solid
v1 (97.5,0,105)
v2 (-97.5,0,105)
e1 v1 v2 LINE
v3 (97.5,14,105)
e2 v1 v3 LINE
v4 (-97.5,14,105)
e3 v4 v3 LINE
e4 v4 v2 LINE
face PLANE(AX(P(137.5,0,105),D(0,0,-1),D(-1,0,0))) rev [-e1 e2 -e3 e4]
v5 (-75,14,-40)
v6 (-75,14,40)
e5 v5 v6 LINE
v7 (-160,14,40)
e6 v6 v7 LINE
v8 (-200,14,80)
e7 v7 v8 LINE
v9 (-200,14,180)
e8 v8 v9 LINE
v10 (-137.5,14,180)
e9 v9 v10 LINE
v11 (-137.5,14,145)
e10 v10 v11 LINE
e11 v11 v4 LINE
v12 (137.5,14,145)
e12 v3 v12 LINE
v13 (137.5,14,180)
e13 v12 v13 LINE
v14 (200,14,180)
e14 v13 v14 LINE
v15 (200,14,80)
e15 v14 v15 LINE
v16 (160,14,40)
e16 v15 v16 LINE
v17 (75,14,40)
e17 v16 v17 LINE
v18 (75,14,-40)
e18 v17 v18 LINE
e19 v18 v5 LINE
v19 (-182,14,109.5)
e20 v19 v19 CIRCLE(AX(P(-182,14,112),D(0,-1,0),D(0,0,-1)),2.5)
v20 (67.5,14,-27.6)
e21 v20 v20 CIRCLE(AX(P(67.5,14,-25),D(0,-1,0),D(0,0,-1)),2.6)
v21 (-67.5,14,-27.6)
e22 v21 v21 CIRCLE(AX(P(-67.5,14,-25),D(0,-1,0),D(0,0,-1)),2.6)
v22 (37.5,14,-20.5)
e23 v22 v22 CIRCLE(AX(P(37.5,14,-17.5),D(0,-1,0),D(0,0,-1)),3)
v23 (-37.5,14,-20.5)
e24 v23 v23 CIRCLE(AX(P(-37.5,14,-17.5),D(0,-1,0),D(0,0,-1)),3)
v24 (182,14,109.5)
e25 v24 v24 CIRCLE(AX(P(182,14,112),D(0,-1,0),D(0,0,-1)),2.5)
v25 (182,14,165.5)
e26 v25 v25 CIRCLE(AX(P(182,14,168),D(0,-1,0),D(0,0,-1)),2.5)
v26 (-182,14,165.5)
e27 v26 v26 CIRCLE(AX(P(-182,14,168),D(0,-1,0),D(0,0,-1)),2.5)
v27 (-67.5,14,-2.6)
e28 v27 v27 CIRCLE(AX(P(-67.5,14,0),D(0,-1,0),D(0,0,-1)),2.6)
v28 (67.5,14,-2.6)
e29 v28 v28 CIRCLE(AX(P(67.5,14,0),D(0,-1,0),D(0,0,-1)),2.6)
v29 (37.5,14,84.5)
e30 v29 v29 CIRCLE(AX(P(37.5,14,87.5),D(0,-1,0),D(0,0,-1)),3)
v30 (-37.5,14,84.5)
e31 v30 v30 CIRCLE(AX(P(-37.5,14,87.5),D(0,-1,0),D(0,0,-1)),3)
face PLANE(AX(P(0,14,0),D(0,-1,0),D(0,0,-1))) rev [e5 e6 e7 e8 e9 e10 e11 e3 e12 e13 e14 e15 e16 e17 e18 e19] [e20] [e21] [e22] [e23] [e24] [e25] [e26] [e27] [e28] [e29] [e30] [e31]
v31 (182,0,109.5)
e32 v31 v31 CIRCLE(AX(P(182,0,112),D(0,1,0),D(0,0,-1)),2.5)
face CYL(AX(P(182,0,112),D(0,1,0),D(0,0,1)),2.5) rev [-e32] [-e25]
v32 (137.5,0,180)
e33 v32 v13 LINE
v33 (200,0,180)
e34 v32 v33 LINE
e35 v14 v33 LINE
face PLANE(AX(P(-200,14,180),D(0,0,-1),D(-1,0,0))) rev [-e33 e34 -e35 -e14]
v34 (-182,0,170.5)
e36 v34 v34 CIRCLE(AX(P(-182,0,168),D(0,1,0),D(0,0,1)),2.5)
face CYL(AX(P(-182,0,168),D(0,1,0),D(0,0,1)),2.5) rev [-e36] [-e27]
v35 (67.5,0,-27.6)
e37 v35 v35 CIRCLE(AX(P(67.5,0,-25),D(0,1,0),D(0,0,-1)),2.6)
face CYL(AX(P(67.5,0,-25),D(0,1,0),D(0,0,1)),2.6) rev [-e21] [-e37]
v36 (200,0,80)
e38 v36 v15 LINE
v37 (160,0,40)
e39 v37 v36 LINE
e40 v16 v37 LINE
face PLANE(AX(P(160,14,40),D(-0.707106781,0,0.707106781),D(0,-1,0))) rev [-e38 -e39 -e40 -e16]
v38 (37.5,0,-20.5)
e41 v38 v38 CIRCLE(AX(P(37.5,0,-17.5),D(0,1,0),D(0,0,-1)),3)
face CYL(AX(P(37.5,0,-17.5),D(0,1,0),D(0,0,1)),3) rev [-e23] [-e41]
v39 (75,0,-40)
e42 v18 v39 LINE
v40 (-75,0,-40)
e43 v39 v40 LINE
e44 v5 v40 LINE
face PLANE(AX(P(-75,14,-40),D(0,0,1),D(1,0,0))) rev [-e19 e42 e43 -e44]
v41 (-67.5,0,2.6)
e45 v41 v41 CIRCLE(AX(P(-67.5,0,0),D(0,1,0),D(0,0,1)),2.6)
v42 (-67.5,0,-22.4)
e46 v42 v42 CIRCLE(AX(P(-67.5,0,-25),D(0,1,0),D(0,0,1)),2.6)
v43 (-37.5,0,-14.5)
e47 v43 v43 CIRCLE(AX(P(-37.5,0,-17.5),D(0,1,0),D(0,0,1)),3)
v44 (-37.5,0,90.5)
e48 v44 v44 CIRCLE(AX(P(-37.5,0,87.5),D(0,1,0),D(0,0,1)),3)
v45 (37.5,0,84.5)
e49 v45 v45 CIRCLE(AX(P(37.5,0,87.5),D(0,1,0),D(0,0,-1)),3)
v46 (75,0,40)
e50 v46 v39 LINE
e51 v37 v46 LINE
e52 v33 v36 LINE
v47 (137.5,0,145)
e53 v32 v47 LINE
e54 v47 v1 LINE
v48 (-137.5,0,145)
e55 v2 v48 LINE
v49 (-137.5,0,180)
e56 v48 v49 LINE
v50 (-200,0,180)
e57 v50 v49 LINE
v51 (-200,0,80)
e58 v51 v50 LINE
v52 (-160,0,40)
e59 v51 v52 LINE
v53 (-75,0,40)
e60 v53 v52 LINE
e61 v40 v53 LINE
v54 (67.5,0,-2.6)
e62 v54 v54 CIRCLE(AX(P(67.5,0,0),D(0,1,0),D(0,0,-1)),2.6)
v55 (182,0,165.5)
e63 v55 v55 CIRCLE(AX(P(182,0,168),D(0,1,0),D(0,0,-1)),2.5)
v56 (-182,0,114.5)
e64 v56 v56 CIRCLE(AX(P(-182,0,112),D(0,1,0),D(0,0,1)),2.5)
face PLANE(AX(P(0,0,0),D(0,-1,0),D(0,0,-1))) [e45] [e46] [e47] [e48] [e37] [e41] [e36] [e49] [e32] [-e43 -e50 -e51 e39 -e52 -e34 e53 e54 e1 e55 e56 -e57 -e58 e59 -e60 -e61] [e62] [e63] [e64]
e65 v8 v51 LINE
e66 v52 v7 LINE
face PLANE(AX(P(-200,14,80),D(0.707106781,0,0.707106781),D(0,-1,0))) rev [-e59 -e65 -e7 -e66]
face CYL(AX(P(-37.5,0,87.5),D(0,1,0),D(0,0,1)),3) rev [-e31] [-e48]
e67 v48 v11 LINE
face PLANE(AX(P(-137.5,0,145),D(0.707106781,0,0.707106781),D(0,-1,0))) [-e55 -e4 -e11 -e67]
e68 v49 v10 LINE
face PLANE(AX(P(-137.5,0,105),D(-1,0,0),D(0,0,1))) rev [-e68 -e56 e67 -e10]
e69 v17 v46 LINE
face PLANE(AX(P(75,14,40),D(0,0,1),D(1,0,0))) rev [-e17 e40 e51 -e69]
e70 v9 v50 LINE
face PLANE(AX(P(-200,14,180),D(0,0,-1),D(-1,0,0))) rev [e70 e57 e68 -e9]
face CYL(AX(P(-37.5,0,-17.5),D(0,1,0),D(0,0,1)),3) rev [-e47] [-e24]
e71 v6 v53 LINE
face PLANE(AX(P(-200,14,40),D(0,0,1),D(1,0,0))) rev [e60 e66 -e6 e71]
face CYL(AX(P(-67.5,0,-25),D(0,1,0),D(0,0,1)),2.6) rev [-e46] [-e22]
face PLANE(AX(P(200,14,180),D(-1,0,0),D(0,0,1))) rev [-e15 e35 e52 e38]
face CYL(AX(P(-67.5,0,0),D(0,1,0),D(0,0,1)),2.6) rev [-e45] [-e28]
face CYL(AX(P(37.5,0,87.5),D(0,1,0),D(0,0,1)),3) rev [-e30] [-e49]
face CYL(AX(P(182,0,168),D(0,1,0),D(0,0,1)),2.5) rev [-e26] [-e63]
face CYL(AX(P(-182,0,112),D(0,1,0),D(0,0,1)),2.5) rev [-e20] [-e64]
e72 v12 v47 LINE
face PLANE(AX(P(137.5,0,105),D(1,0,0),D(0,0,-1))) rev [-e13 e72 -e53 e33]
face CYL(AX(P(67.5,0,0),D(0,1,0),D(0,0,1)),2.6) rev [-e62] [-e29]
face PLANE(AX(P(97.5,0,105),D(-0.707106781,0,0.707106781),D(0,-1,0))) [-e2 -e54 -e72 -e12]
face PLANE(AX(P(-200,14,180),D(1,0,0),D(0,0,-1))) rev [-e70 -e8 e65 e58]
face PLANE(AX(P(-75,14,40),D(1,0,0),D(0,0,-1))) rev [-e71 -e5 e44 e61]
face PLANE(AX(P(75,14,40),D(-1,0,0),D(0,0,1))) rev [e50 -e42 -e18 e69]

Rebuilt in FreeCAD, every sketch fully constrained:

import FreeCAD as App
import Part
import Sketcher
Q = App.Units.Quantity


def edges_at(feature, points):
    """Names of the edges that pass closest to the given points."""
    edges = feature.Shape.Edges
    near = lambda p: min(range(len(edges)), key=lambda i: edges[i].distToShape(Part.Vertex(*p))[0])
    return sorted({f"Edge{near(p) + 1}" for p in points})

doc = App.newDocument("Part")
params = doc.addObject("Spreadsheet::Sheet", "Params")
for row, (alias, value) in enumerate([
    ("sketch1_width", "125 mm"),
    ("sketch1_width2", "400 mm"),
    ("sketch1_height", "80 mm"),
    ("sketch1_height2", "140 mm"),
    ("pad1_length", "14 mm"),
    ("sketch2_diameter", "5 mm"),
    ("sketch2_diameter2", "6 mm"),
    ("sketch2_diameter3", "5.2 mm"),
    ("sketch2_width", "275 mm"),
    ("sketch2_height", "75 mm"),
    ("chamfer_size", "40 mm"),
], start=1):
    params.set(f"A{row}", alias)
    params.set(f"B{row}", "=" + value)
    params.setAlias(f"B{row}", alias)

body = doc.addObject("PartDesign::Body", "Body")

# Sketch on XZ plane
sketch1 = doc.addObject("Sketcher::SketchObject", "Sketch")
body.addObject(sketch1)
sketch1.AttachmentSupport = (doc.XZ_Plane, [""])
sketch1.MapMode = "FlatFace"
sketch1.addGeometry([
    Part.LineSegment(App.Vector(-75, -40, 0), App.Vector(-75, 40, 0)),  # 0
    Part.LineSegment(App.Vector(-75, 40, 0), App.Vector(-200, 40, 0)),  # 1
    Part.LineSegment(App.Vector(-200, 40, 0), App.Vector(-200, 180, 0)),  # 2
    Part.LineSegment(App.Vector(-200, 180, 0), App.Vector(200, 180, 0)),  # 3
    Part.LineSegment(App.Vector(200, 180, 0), App.Vector(200, 40, 0)),  # 4
    Part.LineSegment(App.Vector(200, 40, 0), App.Vector(75, 40, 0)),  # 5
    Part.LineSegment(App.Vector(75, 40, 0), App.Vector(75, -40, 0)),  # 6
    Part.LineSegment(App.Vector(75, -40, 0), App.Vector(-75, -40, 0)),  # 7
], False)
sketch1.addConstraint([
    Sketcher.Constraint("Coincident", 0, 2, 1, 1),
    Sketcher.Constraint("Coincident", 1, 2, 2, 1),
    Sketcher.Constraint("Coincident", 2, 2, 3, 1),
    Sketcher.Constraint("Coincident", 3, 2, 4, 1),
    Sketcher.Constraint("Coincident", 4, 2, 5, 1),
    Sketcher.Constraint("Coincident", 5, 2, 6, 1),
    Sketcher.Constraint("Coincident", 6, 2, 7, 1),
    Sketcher.Constraint("Coincident", 7, 2, 0, 1),
    Sketcher.Constraint("Vertical", 0),
    Sketcher.Constraint("Horizontal", 1),
    Sketcher.Constraint("Vertical", 2),
    Sketcher.Constraint("Horizontal", 3),
    Sketcher.Constraint("Vertical", 4),
    Sketcher.Constraint("Horizontal", 5),
    Sketcher.Constraint("Vertical", 6),
    Sketcher.Constraint("Horizontal", 7),
    Sketcher.Constraint("Symmetric", 0, 2, 6, 2, -1, 1),
    Sketcher.Constraint("Symmetric", 1, 2, 4, 2, -2),
    Sketcher.Constraint("DistanceX", 1, 2, 1, 1, Q("125 mm")),
    Sketcher.Constraint("DistanceX", 3, 1, 3, 2, Q("400 mm")),
    Sketcher.Constraint("DistanceY", 0, 1, 0, 2, Q("80 mm")),
    Sketcher.Constraint("DistanceY", 2, 1, 2, 2, Q("140 mm")),
])
sketch1.setExpression("Constraints[18]", "Params.sketch1_width")
sketch1.setExpression("Constraints[19]", "Params.sketch1_width2")
sketch1.setExpression("Constraints[20]", "Params.sketch1_height")
sketch1.setExpression("Constraints[21]", "Params.sketch1_height2")
pad1 = doc.addObject("PartDesign::Pad", "Pad")
body.addObject(pad1)
pad1.Profile = sketch1
pad1.setExpression("Length", "Params.pad1_length")
pad1.Reversed = True

# Sketch on XZ plane
sketch2 = doc.addObject("Sketcher::SketchObject", "Sketch001")
body.addObject(sketch2)
sketch2.AttachmentSupport = (doc.XZ_Plane, [""])
sketch2.MapMode = "FlatFace"
sketch2.AttachmentOffset = App.Placement(App.Vector(0, 0, -14), App.Rotation())
sketch2.addGeometry([
    Part.Circle(App.Vector(-67.5, -25, 0), App.Vector(0, 0, 1), 2.6),  # 0
    Part.Circle(App.Vector(-67.5, 0, 0), App.Vector(0, 0, 1), 2.6),  # 1
    Part.Circle(App.Vector(-182, 168, 0), App.Vector(0, 0, 1), 2.5),  # 2
    Part.Circle(App.Vector(-182, 112, 0), App.Vector(0, 0, 1), 2.5),  # 3
    Part.Circle(App.Vector(-37.5, -17.5, 0), App.Vector(0, 0, 1), 3),  # 4
    Part.Circle(App.Vector(-37.5, 87.5, 0), App.Vector(0, 0, 1), 3),  # 5
    Part.Circle(App.Vector(37.5, 87.5, 0), App.Vector(0, 0, 1), 3),  # 6
    Part.Circle(App.Vector(37.5, -17.5, 0), App.Vector(0, 0, 1), 3),  # 7
    Part.Circle(App.Vector(182, 112, 0), App.Vector(0, 0, 1), 2.5),  # 8
    Part.Circle(App.Vector(182, 168, 0), App.Vector(0, 0, 1), 2.5),  # 9
    Part.Circle(App.Vector(67.5, 0, 0), App.Vector(0, 0, 1), 2.6),  # 10
    Part.Circle(App.Vector(67.5, -25, 0), App.Vector(0, 0, 1), 2.6),  # 11
    Part.LineSegment(App.Vector(-137.5, 105, 0), App.Vector(-137.5, 180, 0)),  # 12
    Part.LineSegment(App.Vector(-137.5, 180, 0), App.Vector(137.5, 180, 0)),  # 13
    Part.LineSegment(App.Vector(137.5, 180, 0), App.Vector(137.5, 105, 0)),  # 14
    Part.LineSegment(App.Vector(137.5, 105, 0), App.Vector(-137.5, 105, 0)),  # 15
], False)
sketch2.addConstraint([
    Sketcher.Constraint("Coincident", 12, 2, 13, 1),
    Sketcher.Constraint("Coincident", 13, 2, 14, 1),
    Sketcher.Constraint("Coincident", 14, 2, 15, 1),
    Sketcher.Constraint("Coincident", 15, 2, 12, 1),
    Sketcher.Constraint("Vertical", 12),
    Sketcher.Constraint("Horizontal", 13),
    Sketcher.Constraint("Vertical", 14),
    Sketcher.Constraint("Horizontal", 15),
    Sketcher.Constraint("Equal", 0, 1),
    Sketcher.Constraint("Equal", 2, 3),
    Sketcher.Constraint("Equal", 4, 5),
    Sketcher.Constraint("Equal", 5, 6),
    Sketcher.Constraint("Equal", 6, 7),
    Sketcher.Constraint("Equal", 3, 8),
    Sketcher.Constraint("Equal", 8, 9),
    Sketcher.Constraint("Equal", 1, 10),
    Sketcher.Constraint("Equal", 10, 11),
    Sketcher.Constraint("Symmetric", 1, 3, 10, 3, -1, 1),
    Sketcher.Constraint("Symmetric", 5, 3, 6, 3, -2),
    Sketcher.Constraint("Symmetric", 4, 3, 7, 3, -2),
    Sketcher.Constraint("Symmetric", 3, 3, 8, 3, -2),
    Sketcher.Constraint("Symmetric", 2, 3, 9, 3, -2),
    Sketcher.Constraint("Symmetric", 0, 3, 11, 3, -2),
    Sketcher.Constraint("PointOnObject", 1, 3, -1),
    Sketcher.Constraint("Vertical", 0, 3, 1, 3),
    Sketcher.Constraint("Vertical", 2, 3, 3, 3),
    Sketcher.Constraint("Vertical", 4, 3, 5, 3),
    Sketcher.Constraint("Diameter", 2, Q("5 mm")),
    Sketcher.Constraint("Diameter", 4, Q("6 mm")),
    Sketcher.Constraint("Diameter", 0, Q("5.2 mm")),
    Sketcher.Constraint("DistanceX", 13, 1, 13, 2, Q("275 mm")),
    Sketcher.Constraint("DistanceY", 12, 1, 12, 2, Q("75 mm")),
    Sketcher.Constraint("DistanceY", 0, 3, -1, 1, Q("25 mm")),
    Sketcher.Constraint("DistanceX", 2, 3, -1, 1, Q("182 mm")),
    Sketcher.Constraint("DistanceY", -1, 1, 2, 3, Q("168 mm")),
    Sketcher.Constraint("DistanceY", -1, 1, 3, 3, Q("112 mm")),
    Sketcher.Constraint("DistanceY", -1, 1, 12, 2, Q("180 mm")),
    Sketcher.Constraint("DistanceX", 0, 3, 4, 3, Q("30 mm")),
    Sketcher.Constraint("DistanceY", 4, 3, 5, 3, Q("105 mm")),
    Sketcher.Constraint("DistanceX", 5, 3, 6, 3, Q("75 mm")),
    Sketcher.Constraint("DistanceX", 12, 2, 5, 3, Q("100 mm")),
    Sketcher.Constraint("DistanceY", 4, 3, -1, 1, Q("17.5 mm")),
])
sketch2.setExpression("Constraints[27]", "Params.sketch2_diameter")
sketch2.setExpression("Constraints[28]", "Params.sketch2_diameter2")
sketch2.setExpression("Constraints[29]", "Params.sketch2_diameter3")
sketch2.setExpression("Constraints[30]", "Params.sketch2_width")
sketch2.setExpression("Constraints[31]", "Params.sketch2_height")
pocket1 = doc.addObject("PartDesign::Pocket", "Pocket")
body.addObject(pocket1)
pocket1.Profile = sketch2
pocket1.Type = "ThroughAll"
pocket1.Midplane = True
doc.recompute()

chamfer = doc.addObject("PartDesign::Chamfer", "Chamfer")
body.addObject(chamfer)
chamfer.Base = (pocket1, edges_at(pocket1, [
    (200, 7, 40),
    (-200, 7, 40),
    (-137.5, 7, 105),
    (137.5, 7, 105),
]))
chamfer.setExpression("Size", "Params.chamfer_size")

doc.recompute()
